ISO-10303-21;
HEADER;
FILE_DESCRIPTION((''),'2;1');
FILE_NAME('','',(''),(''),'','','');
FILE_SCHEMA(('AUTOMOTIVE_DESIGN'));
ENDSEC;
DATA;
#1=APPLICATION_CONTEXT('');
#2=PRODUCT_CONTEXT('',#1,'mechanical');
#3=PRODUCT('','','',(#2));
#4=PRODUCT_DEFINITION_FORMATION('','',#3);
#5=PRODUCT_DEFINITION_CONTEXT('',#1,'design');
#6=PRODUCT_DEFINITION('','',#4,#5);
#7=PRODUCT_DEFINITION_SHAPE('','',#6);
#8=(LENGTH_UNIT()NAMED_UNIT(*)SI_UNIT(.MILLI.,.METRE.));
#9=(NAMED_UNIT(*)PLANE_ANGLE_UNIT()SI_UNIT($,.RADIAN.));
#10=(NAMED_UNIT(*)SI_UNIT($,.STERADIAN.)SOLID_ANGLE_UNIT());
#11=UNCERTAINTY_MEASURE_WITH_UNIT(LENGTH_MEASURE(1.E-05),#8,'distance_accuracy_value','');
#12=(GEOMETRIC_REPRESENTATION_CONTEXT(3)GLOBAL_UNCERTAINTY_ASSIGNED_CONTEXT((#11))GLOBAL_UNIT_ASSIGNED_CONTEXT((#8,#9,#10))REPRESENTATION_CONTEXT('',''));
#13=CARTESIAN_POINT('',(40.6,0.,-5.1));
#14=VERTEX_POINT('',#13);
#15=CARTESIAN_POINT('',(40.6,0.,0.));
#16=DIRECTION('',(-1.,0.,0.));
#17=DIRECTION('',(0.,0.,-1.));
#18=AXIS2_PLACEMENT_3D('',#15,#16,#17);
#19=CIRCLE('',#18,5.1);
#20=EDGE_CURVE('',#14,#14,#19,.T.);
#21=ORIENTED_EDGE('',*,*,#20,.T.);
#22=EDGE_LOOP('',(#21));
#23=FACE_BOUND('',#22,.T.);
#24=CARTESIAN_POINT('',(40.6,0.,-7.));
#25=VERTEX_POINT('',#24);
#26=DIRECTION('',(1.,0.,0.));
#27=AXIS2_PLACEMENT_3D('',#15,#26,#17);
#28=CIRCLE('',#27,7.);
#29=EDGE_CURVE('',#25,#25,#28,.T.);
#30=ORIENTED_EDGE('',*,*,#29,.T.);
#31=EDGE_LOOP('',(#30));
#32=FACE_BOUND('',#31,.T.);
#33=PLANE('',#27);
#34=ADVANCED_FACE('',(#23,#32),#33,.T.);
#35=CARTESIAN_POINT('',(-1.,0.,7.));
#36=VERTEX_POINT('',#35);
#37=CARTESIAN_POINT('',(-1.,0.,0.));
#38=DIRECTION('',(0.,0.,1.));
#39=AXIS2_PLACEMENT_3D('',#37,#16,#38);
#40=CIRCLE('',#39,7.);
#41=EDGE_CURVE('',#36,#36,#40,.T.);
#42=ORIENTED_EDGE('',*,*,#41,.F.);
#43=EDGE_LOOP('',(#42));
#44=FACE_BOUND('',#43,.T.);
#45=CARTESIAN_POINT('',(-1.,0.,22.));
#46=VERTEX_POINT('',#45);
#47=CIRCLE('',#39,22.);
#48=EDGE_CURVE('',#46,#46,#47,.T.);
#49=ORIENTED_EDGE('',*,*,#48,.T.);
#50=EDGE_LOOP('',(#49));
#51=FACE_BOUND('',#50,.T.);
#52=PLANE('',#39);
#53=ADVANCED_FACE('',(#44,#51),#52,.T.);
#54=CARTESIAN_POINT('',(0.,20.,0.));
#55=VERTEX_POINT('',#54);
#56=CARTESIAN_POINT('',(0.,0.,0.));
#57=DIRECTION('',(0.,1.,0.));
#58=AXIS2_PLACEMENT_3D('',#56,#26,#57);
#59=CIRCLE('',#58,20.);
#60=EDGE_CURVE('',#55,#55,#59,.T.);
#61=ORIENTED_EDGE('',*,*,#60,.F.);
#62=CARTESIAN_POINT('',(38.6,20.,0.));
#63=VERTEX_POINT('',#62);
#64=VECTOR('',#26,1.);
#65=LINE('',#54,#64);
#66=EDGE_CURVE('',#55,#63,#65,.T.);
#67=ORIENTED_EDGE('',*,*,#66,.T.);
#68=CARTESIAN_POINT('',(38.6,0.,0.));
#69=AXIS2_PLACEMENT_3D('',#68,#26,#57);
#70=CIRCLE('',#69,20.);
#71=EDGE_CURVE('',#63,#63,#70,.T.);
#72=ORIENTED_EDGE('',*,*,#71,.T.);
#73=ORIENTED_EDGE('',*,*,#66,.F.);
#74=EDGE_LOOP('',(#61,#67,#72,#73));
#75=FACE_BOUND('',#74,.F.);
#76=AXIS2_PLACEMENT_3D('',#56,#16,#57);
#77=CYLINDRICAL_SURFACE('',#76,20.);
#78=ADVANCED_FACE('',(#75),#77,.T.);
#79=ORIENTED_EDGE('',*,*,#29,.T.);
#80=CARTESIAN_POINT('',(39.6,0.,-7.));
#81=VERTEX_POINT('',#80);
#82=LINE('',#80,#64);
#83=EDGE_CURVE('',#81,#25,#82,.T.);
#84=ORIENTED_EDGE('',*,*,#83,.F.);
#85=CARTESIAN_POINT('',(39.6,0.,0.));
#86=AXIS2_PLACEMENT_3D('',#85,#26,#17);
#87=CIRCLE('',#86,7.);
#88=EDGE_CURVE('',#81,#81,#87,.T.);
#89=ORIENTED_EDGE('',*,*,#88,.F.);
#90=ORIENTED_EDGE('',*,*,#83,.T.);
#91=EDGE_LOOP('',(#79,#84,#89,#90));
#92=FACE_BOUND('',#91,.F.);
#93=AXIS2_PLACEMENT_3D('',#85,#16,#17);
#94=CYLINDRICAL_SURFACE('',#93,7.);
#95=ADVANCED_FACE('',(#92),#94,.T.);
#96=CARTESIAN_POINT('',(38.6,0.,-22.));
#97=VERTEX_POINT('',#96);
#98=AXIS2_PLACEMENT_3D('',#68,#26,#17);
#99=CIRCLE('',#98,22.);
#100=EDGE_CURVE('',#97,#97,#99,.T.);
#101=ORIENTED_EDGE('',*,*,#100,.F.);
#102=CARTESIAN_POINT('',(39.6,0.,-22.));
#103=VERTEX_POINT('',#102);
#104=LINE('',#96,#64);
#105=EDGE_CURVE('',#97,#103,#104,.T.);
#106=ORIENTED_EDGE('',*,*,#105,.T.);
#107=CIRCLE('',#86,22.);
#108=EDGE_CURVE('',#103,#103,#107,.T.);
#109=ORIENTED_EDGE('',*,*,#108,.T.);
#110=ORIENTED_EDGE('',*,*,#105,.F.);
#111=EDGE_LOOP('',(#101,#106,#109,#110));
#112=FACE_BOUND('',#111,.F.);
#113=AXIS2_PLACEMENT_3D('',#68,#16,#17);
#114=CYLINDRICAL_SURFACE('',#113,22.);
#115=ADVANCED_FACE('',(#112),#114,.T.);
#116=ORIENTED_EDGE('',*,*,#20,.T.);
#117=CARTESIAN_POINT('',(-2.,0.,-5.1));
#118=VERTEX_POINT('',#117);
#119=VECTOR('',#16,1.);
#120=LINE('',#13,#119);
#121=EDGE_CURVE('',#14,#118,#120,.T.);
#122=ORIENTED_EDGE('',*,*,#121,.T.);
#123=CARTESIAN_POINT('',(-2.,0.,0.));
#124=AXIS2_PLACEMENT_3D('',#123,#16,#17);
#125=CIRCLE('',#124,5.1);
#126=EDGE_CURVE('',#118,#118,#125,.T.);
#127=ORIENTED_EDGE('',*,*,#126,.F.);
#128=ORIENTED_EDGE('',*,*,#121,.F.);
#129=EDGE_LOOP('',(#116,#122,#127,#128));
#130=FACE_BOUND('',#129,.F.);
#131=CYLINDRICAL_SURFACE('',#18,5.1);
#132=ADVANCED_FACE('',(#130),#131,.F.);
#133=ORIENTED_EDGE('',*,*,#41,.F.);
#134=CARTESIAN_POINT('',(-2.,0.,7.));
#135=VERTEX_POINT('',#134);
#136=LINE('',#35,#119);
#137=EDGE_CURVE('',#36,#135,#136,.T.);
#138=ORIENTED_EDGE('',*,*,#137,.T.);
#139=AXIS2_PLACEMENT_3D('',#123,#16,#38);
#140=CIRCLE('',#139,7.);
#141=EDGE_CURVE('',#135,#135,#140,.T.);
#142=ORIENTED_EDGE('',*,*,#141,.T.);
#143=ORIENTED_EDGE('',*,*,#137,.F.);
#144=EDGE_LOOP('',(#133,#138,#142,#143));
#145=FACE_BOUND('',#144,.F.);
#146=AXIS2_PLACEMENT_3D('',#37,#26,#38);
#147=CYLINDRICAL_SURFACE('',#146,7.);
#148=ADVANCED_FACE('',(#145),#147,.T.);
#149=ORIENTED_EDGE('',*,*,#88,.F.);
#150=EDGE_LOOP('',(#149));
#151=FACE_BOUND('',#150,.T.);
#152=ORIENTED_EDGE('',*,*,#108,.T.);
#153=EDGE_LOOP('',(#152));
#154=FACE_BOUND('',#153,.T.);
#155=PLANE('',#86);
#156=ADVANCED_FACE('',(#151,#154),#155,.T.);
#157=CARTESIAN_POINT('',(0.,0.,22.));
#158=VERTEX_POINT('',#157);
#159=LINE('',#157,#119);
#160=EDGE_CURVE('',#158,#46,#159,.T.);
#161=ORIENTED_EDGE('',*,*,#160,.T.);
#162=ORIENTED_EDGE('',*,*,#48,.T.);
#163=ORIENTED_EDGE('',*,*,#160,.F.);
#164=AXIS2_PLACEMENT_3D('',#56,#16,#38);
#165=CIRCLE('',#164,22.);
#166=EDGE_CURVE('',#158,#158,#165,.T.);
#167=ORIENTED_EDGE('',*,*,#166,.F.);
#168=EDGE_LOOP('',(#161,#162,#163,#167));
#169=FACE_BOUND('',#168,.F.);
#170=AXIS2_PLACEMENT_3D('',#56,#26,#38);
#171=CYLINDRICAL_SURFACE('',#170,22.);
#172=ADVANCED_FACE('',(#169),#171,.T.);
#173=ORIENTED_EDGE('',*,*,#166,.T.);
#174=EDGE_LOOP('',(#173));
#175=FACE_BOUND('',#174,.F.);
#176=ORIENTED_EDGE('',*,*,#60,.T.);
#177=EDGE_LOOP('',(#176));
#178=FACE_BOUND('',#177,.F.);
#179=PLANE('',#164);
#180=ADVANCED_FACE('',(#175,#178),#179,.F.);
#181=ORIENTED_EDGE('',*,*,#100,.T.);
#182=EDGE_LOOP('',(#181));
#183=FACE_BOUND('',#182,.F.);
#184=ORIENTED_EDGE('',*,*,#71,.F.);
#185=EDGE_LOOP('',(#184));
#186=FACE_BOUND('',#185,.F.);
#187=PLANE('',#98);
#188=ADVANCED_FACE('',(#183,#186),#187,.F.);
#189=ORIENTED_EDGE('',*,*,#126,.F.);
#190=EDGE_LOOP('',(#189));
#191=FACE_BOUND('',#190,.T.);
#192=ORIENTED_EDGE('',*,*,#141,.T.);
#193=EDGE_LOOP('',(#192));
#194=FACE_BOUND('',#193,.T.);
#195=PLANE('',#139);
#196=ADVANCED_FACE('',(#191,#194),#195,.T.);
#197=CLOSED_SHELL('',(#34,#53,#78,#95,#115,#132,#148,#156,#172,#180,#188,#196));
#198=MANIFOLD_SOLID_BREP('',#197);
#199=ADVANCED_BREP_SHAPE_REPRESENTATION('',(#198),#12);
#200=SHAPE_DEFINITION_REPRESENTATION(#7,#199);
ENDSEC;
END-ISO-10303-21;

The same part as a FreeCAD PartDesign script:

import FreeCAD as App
import Part
import Sketcher

doc = App.newDocument("Part")
params = doc.addObject("Spreadsheet::Sheet", "Params")
for row, (alias, value) in enumerate([
    ("sketch1_diameter", "40 mm"),
    ("pad1_length", "38.6 mm"),
    ("sketch2_diameter", "44 mm"),
    ("pad2_length", "1 mm"),
    ("sketch3_diameter", "14 mm"),
    ("pad3_length", "1 mm"),
    ("sketch4_diameter", "44 mm"),
    ("pad4_length", "1 mm"),
    ("sketch5_diameter", "14 mm"),
    ("pad5_length", "1 mm"),
    ("sketch6_diameter", "10.2 mm"),
    ("hole_diameter", "10.2 mm"),
], start=1):
    params.set(f"A{row}", alias)
    params.set(f"B{row}", "=" + value)
    params.setAlias(f"B{row}", alias)

body = doc.addObject("PartDesign::Body", "Body")

sketch1 = body.newObject("Sketcher::SketchObject", "Sketch")
sketch1.AttachmentSupport = (doc.getObject("YZ_Plane"), [""])
sketch1.MapMode = "FlatFace"
sketch1.addGeometry(Part.Circle(App.Vector(0, 0, 0), App.Vector(0, 0, 1), 20), False)
sketch1.addConstraint([
    Sketcher.Constraint("Coincident", 0, 3, -1, 1),
    Sketcher.Constraint("Diameter", 0, 40.0),
])
sketch1.setExpression("Constraints[1]", "Params.sketch1_diameter")
pad1 = body.newObject("PartDesign::Pad", "Pad")
pad1.Profile = sketch1
pad1.setExpression("Length", "Params.pad1_length")

sketch2 = body.newObject("Sketcher::SketchObject", "Sketch001")
sketch2.AttachmentSupport = (doc.getObject("YZ_Plane"), [""])
sketch2.MapMode = "FlatFace"
sketch2.AttachmentOffset = App.Placement(App.Vector(0, 0, 38.6), App.Rotation())
sketch2.addGeometry(Part.Circle(App.Vector(0, 0, 0), App.Vector(0, 0, 1), 22), False)
sketch2.addConstraint([
    Sketcher.Constraint("Coincident", 0, 3, -1, 1),
    Sketcher.Constraint("Diameter", 0, 44.0),
])
sketch2.setExpression("Constraints[1]", "Params.sketch2_diameter")
pad2 = body.newObject("PartDesign::Pad", "Pad001")
pad2.Profile = sketch2
pad2.setExpression("Length", "Params.pad2_length")

sketch3 = body.newObject("Sketcher::SketchObject", "Sketch002")
sketch3.AttachmentSupport = (doc.getObject("YZ_Plane"), [""])
sketch3.MapMode = "FlatFace"
sketch3.AttachmentOffset = App.Placement(App.Vector(0, 0, 39.6), App.Rotation())
sketch3.addGeometry(Part.Circle(App.Vector(0, 0, 0), App.Vector(0, 0, 1), 7), False)
sketch3.addConstraint([
    Sketcher.Constraint("Coincident", 0, 3, -1, 1),
    Sketcher.Constraint("Diameter", 0, 14.0),
])
sketch3.setExpression("Constraints[1]", "Params.sketch3_diameter")
pad3 = body.newObject("PartDesign::Pad", "Pad002")
pad3.Profile = sketch3
pad3.setExpression("Length", "Params.pad3_length")

sketch4 = body.newObject("Sketcher::SketchObject", "Sketch003")
sketch4.AttachmentSupport = (doc.getObject("YZ_Plane"), [""])
sketch4.MapMode = "FlatFace"
sketch4.addGeometry(Part.Circle(App.Vector(0, 0, 0), App.Vector(0, 0, 1), 22), False)
sketch4.addConstraint([
    Sketcher.Constraint("Coincident", 0, 3, -1, 1),
    Sketcher.Constraint("Diameter", 0, 44.0),
])
sketch4.setExpression("Constraints[1]", "Params.sketch4_diameter")
pad4 = body.newObject("PartDesign::Pad", "Pad003")
pad4.Profile = sketch4
pad4.setExpression("Length", "Params.pad4_length")
pad4.Reversed = True

sketch5 = body.newObject("Sketcher::SketchObject", "Sketch004")
sketch5.AttachmentSupport = (doc.getObject("YZ_Plane"), [""])
sketch5.MapMode = "FlatFace"
sketch5.AttachmentOffset = App.Placement(App.Vector(0, 0, -1), App.Rotation())
sketch5.addGeometry(Part.Circle(App.Vector(0, 0, 0), App.Vector(0, 0, 1), 7), False)
sketch5.addConstraint([
    Sketcher.Constraint("Coincident", 0, 3, -1, 1),
    Sketcher.Constraint("Diameter", 0, 14.0),
])
sketch5.setExpression("Constraints[1]", "Params.sketch5_diameter")
pad5 = body.newObject("PartDesign::Pad", "Pad004")
pad5.Profile = sketch5
pad5.setExpression("Length", "Params.pad5_length")
pad5.Reversed = True

sketch6 = body.newObject("Sketcher::SketchObject", "Sketch005")
sketch6.AttachmentSupport = (doc.getObject("YZ_Plane"), [""])
sketch6.MapMode = "FlatFace"
sketch6.AttachmentOffset = App.Placement(App.Vector(0, 0, 40.6), App.Rotation())
sketch6.addGeometry(Part.Circle(App.Vector(0, 0, 0), App.Vector(0, 0, 1), 5), False)
sketch6.addConstraint([
    Sketcher.Constraint("Coincident", 0, 3, -1, 1),
    Sketcher.Constraint("Diameter", 0, 10.2),
])
sketch6.setExpression("Constraints[1]", "Params.sketch6_diameter")
doc.recompute()
hole = body.newObject("PartDesign::Hole", "Hole")
hole.Profile = sketch6
hole.ThreadType = "None"
hole.setExpression("Diameter", "Params.hole_diameter")
hole.DepthType = "ThroughAll"

doc.recompute()
